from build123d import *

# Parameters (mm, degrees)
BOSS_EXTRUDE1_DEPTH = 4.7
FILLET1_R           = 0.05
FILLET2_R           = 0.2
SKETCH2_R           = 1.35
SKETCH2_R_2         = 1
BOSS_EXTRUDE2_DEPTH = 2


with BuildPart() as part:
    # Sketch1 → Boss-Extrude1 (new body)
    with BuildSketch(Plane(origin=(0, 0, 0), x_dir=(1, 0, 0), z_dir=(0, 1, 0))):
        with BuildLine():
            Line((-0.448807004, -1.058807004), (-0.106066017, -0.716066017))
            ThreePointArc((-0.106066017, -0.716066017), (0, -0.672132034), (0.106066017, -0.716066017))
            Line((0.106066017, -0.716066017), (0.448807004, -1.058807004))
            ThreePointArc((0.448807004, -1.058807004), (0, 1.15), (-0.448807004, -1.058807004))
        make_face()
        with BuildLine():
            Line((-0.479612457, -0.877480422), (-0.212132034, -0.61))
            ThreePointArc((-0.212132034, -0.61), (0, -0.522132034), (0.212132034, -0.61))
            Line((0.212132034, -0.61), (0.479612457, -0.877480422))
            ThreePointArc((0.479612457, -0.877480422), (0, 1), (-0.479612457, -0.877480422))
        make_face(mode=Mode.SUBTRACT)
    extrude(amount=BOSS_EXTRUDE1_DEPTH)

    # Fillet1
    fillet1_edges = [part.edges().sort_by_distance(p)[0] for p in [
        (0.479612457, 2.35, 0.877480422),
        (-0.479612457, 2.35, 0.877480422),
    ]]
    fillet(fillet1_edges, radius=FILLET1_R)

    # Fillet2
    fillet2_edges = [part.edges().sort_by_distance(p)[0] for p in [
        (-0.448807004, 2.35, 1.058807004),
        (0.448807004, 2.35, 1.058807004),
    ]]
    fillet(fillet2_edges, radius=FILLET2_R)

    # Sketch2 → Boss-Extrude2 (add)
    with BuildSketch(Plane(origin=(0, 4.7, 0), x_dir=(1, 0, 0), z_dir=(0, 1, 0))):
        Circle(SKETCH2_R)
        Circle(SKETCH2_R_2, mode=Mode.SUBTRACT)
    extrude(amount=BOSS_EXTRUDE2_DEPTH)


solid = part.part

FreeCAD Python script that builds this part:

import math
import FreeCAD as App
import Part
import Sketcher
from FreeCAD import Vector


def edges_at(feature, points):
    """Names of the edges that pass closest to the given points."""
    edges = feature.Shape.Edges
    near = lambda p: min(range(len(edges)), key=lambda i: edges[i].distToShape(Part.Vertex(*p))[0])
    return sorted({f"Edge{near(p) + 1}" for p in points})

doc = App.newDocument("Part")
body = doc.addObject("PartDesign::Body", "Body")

# Sketch on XZ plane
sketch1 = body.newObject("Sketcher::SketchObject", "Sketch")
sketch1.AttachmentSupport = (doc.getObject("XZ_Plane"), [""])
sketch1.MapMode = "FlatFace"
sketch1.addGeometry([
    Part.LineSegment(Vector(-0.45, 1.06, 0), Vector(-0.11, 0.72, 0)),  # 0
    Part.ArcOfCircle(Part.Circle(Vector(0, 0.82, 0), Vector(0, 0, 1), 0.15), math.radians(-135), math.radians(-45)),  # 1
    Part.LineSegment(Vector(0.11, 0.72, 0), Vector(0.45, 1.06, 0)),  # 2
    Part.ArcOfCircle(Part.Circle(Vector(0, 0, 0), Vector(0, 0, 1), 1.15), math.radians(113), math.radians(427)),  # 3
    Part.LineSegment(Vector(-0.21, 0.61, 0), Vector(-0.48, 0.88, 0)),  # 4
    Part.ArcOfCircle(Part.Circle(Vector(0, 0, 0), Vector(0, 0, 1), 1), math.radians(119), math.radians(421)),  # 5
    Part.LineSegment(Vector(0.48, 0.88, 0), Vector(0.21, 0.61, 0)),  # 6
    Part.ArcOfCircle(Part.Circle(Vector(0, 0.82, 0), Vector(0, 0, 1), 0.3), math.radians(-135), math.radians(-45)),  # 7
], False)
sketch1.addConstraint([
    Sketcher.Constraint("Tangent", 0, 2, 1, 1),
    Sketcher.Constraint("Tangent", 1, 2, 2, 1),
    Sketcher.Constraint("Coincident", 2, 2, 3, 2),
    Sketcher.Constraint("Coincident", 3, 1, 0, 1),
    Sketcher.Constraint("Coincident", 4, 2, 5, 1),
    Sketcher.Constraint("Coincident", 5, 2, 6, 1),
    Sketcher.Constraint("Tangent", 6, 2, 7, 2),
    Sketcher.Constraint("Tangent", 7, 1, 4, 1),
    Sketcher.Constraint("Coincident", 3, 3, -1, 1),
    Sketcher.Constraint("Coincident", 5, 3, -1, 1),
    Sketcher.Constraint("Coincident", 7, 3, 1, 3),
    Sketcher.Constraint("Symmetric", 0, 2, 1, 2, -2),
    Sketcher.Constraint("Perpendicular", 0, 2),
    Sketcher.Constraint("Perpendicular", 2, 4),
    Sketcher.Constraint("Perpendicular", 4, 6),
    Sketcher.Constraint("Radius", 5, 1.0),
    Sketcher.Constraint("Radius", 7, 0.3),
    Sketcher.Constraint("Radius", 1, 0.15),
    Sketcher.Constraint("Radius", 3, 1.15),
    Sketcher.Constraint("DistanceY", -1, 1, 6, 2, 0.61),
])
pad1 = body.newObject("PartDesign::Pad", "Pad")
pad1.Profile = sketch1
pad1.Length = 4.7
pad1.Reversed = True
doc.recompute()

fillet = body.newObject("PartDesign::Fillet", "Fillet")
fillet.Base = (pad1, edges_at(pad1, [(0.48, 2.35, 0.877), (-0.48, 2.35, 0.877)]))
fillet.Radius = 0.05
doc.recompute()

fillet2 = body.newObject("PartDesign::Fillet", "Fillet001")
fillet2.Base = (fillet, edges_at(fillet, [(-0.449, 2.35, 1.059), (0.449, 2.35, 1.059)]))
fillet2.Radius = 0.2

# Sketch on XZ plane
sketch2 = body.newObject("Sketcher::SketchObject", "Sketch001")
sketch2.AttachmentSupport = (doc.getObject("XZ_Plane"), [""])
sketch2.MapMode = "FlatFace"
sketch2.AttachmentOffset = App.Placement(Vector(0, 0, -4.7), App.Rotation())
sketch2.addGeometry([
    Part.Circle(Vector(0, 0, 0), Vector(0, 0, 1), 1.4),
    Part.Circle(Vector(0, 0, 0), Vector(0, 0, 1), 1),
], False)
sketch2.addConstraint([
    Sketcher.Constraint("Coincident", 0, 3, -1, 1),
    Sketcher.Constraint("Coincident", 1, 3, -1, 1),
    Sketcher.Constraint("Diameter", 1, 2.0),
    Sketcher.Constraint("Diameter", 0, 2.7),
])
pad2 = body.newObject("PartDesign::Pad", "Pad001")
pad2.Profile = sketch2
pad2.Length = 2
pad2.Reversed = True

doc.recompute()
